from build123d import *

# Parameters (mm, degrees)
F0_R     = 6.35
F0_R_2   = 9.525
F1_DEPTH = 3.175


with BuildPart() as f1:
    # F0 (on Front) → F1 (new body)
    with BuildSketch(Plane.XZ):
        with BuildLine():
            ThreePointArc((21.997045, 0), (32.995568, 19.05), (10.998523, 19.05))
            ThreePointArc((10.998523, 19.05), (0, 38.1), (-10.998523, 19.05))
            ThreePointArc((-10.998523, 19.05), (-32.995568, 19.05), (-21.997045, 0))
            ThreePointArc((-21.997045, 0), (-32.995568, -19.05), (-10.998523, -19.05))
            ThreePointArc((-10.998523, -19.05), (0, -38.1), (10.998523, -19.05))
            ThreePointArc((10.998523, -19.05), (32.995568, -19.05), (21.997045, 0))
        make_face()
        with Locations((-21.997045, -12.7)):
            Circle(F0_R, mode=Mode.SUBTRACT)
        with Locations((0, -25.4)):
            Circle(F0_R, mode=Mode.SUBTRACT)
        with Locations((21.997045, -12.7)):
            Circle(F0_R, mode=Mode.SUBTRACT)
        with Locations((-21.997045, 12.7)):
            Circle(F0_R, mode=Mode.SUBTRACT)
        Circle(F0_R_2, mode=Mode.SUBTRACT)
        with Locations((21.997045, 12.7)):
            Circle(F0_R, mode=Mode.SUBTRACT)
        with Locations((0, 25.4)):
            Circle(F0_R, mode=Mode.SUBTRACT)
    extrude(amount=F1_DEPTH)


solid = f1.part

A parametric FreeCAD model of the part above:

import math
import FreeCAD as App
import Part
import Sketcher

V = App.Vector
Q = App.Units.Quantity

doc = App.newDocument("Part")
body = doc.addObject("PartDesign::Body", "Body")

sketch1 = doc.addObject("Sketcher::SketchObject", "Sketch")
body.addObject(sketch1)
sketch1.AttachmentSupport = (doc.XZ_Plane, [""])
sketch1.MapMode = "FlatFace"
sketch1.addGeometry(Part.ArcOfCircle(Part.Circle(V(21.997045, 12.7, 0), V(0, 0, 1), 12.7), math.radians(-90.000002), math.radians(149.999999)), False)
sketch1.addGeometry(Part.ArcOfCircle(Part.Circle(V(0, 25.4, 0), V(0, 0, 1), 12.7), math.radians(-29.999998), math.radians(209.999998)), False)
sketch1.addGeometry(Part.ArcOfCircle(Part.Circle(V(-21.997045, 12.7, 0), V(0, 0, 1), 12.7), math.radians(30.000001), math.radians(270.000002)), False)
sketch1.addGeometry(Part.ArcOfCircle(Part.Circle(V(-21.997045, -12.7, 0), V(0, 0, 1), 12.7), math.radians(89.999998), math.radians(329.999999)), False)
sketch1.addGeometry(Part.ArcOfCircle(Part.Circle(V(0, -25.4, 0), V(0, 0, 1), 12.7), math.radians(150.000002), math.radians(389.999998)), False)
sketch1.addGeometry(Part.ArcOfCircle(Part.Circle(V(21.997045, -12.7, 0), V(0, 0, 1), 12.7), math.radians(-149.999999), math.radians(90.000002)), False)
sketch1.addGeometry(Part.Circle(V(0, -25.4, 0), V(0, 0, 1), 6.35), False)
sketch1.addGeometry(Part.Circle(V(-21.997045, -12.7, 0), V(0, 0, 1), 6.35), False)
sketch1.addGeometry(Part.Circle(V(21.997045, -12.7, 0), V(0, 0, 1), 6.35), False)
sketch1.addGeometry(Part.Circle(V(-21.997045, 12.7, 0), V(0, 0, 1), 6.35), False)
sketch1.addGeometry(Part.Circle(V(0, 0, 0), V(0, 0, 1), 9.525), False)
sketch1.addGeometry(Part.Circle(V(0, 25.4, 0), V(0, 0, 1), 6.35), False)
sketch1.addGeometry(Part.Circle(V(21.997045, 12.7, 0), V(0, 0, 1), 6.35), False)
sketch1.addConstraint(Sketcher.Constraint("Tangent", 0, 2, 1, 1))
sketch1.addConstraint(Sketcher.Constraint("Tangent", 1, 2, 2, 1))
sketch1.addConstraint(Sketcher.Constraint("Tangent", 2, 2, 3, 1))
sketch1.addConstraint(Sketcher.Constraint("Tangent", 3, 2, 4, 1))
sketch1.addConstraint(Sketcher.Constraint("Tangent", 4, 2, 5, 1))
sketch1.addConstraint(Sketcher.Constraint("Tangent", 5, 2, 0, 1))
sketch1.addConstraint(Sketcher.Constraint("Coincident", 10, 3, -1, 1))
sketch1.addConstraint(Sketcher.Constraint("Coincident", 6, 3, 4, 3))
sketch1.addConstraint(Sketcher.Constraint("Coincident", 7, 3, 3, 3))
sketch1.addConstraint(Sketcher.Constraint("Coincident", 8, 3, 5, 3))
sketch1.addConstraint(Sketcher.Constraint("Coincident", 9, 3, 2, 3))
sketch1.addConstraint(Sketcher.Constraint("Coincident", 11, 3, 1, 3))
sketch1.addConstraint(Sketcher.Constraint("Coincident", 12, 3, 0, 3))
sketch1.addConstraint(Sketcher.Constraint("Equal", 0, 1))
sketch1.addConstraint(Sketcher.Constraint("Equal", 1, 2))
sketch1.addConstraint(Sketcher.Constraint("Equal", 2, 3))
sketch1.addConstraint(Sketcher.Constraint("Equal", 3, 4))
sketch1.addConstraint(Sketcher.Constraint("Equal", 4, 5))
sketch1.addConstraint(Sketcher.Constraint("Equal", 6, 7))
sketch1.addConstraint(Sketcher.Constraint("Equal", 7, 8))
sketch1.addConstraint(Sketcher.Constraint("Equal", 8, 9))
sketch1.addConstraint(Sketcher.Constraint("Equal", 9, 11))
sketch1.addConstraint(Sketcher.Constraint("Equal", 11, 12))
sketch1.addConstraint(Sketcher.Constraint("Symmetric", 0, 3, 3, 3, -1, 1))
sketch1.addConstraint(Sketcher.Constraint("Symmetric", 0, 3, 2, 3, -2))
sketch1.addConstraint(Sketcher.Constraint("PointOnObject", 4, 3, -2))
sketch1.addConstraint(Sketcher.Constraint("Diameter", 6, Q("0.5 in")))
sketch1.addConstraint(Sketcher.Constraint("Radius", 0, Q("0.5 in")))
sketch1.addConstraint(Sketcher.Constraint("Diameter", 10, Q("0.75 in")))
sketch1.addConstraint(Sketcher.Constraint("DistanceY", -1, 1, 1, 3, Q("1 in")))
pad1 = doc.addObject("PartDesign::Pad", "Pad")
body.addObject(pad1)
pad1.Profile = sketch1
pad1.Length = Q("0.125 in")

doc.recompute()
